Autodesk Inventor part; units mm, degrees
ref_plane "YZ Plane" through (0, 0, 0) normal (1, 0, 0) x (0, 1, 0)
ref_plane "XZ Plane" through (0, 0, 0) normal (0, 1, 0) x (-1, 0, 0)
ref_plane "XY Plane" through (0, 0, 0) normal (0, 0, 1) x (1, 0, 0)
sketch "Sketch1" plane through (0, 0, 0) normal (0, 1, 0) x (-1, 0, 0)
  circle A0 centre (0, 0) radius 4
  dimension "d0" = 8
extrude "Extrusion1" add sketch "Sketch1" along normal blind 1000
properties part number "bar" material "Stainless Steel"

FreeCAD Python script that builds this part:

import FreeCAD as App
import Part
import Sketcher
Q = App.Units.Quantity

doc = App.newDocument("Part")
body = doc.addObject("PartDesign::Body", "Body")

sketch1 = body.newObject("Sketcher::SketchObject", "Sketch")
sketch1.AttachmentSupport = (doc.getObject("XZ_Plane"), [""])
sketch1.MapMode = "FlatFace"
sketch1.addGeometry(Part.Circle(App.Vector(0, 0, 0), App.Vector(0, 0, 1), 4), False)
sketch1.addConstraint(Sketcher.Constraint("Coincident", 0, 3, -1, 1))
sketch1.addConstraint(Sketcher.Constraint("Diameter", 0, Q("8 mm")))
pad1 = body.newObject("PartDesign::Pad", "Pad")
pad1.Profile = sketch1
pad1.Length = 1000
pad1.Reversed = True

doc.recompute()
